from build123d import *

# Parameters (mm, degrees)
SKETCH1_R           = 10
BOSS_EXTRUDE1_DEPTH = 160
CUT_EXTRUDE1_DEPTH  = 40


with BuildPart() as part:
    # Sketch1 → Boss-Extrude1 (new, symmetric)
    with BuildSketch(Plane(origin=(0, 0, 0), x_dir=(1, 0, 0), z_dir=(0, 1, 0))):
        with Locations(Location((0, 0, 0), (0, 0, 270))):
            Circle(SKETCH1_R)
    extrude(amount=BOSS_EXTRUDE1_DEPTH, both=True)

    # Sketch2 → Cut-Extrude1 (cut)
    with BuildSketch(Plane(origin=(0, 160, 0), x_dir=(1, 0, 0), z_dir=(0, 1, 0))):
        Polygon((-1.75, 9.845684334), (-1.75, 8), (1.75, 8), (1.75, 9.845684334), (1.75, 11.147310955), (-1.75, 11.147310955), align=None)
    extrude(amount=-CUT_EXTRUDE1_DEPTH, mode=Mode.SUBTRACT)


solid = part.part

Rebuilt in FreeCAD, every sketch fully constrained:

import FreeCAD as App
import Part
import Sketcher


def add_polygon(sketch, points):
    """Adds a closed chain of lines whose ends are joined by coincident constraints."""
    first, n = sketch.GeometryCount, len(points)
    for a, b in zip(points, points[1:] + points[:1]):
        sketch.addGeometry(Part.LineSegment(App.Vector(*a, 0), App.Vector(*b, 0)), False)
    for i in range(n):
        sketch.addConstraint(Sketcher.Constraint("Coincident", first + i, 2, first + (i + 1) % n, 1))

doc = App.newDocument("Part")
params = doc.addObject("Spreadsheet::Sheet", "Params")
for row, (alias, value) in enumerate([
    ("sketch1_diameter", "20 mm"),
    ("pad1_length", "320 mm"),
    ("sketch2_width", "3.5 mm"),
    ("pocket1_length", "40 mm"),
], start=1):
    params.set(f"A{row}", alias)
    params.set(f"B{row}", "=" + value)
    params.setAlias(f"B{row}", alias)

body = doc.addObject("PartDesign::Body", "Body")

# Sketch on XZ plane
sketch1 = body.newObject("Sketcher::SketchObject", "Sketch")
sketch1.AttachmentSupport = (doc.getObject("XZ_Plane"), [""])
sketch1.MapMode = "FlatFace"
sketch1.addGeometry(Part.Circle(App.Vector(0, 0, 0), App.Vector(0, 0, 1), 10), False)
sketch1.addConstraint(Sketcher.Constraint("Coincident", 0, 3, -1, 1))
sketch1.addConstraint(Sketcher.Constraint("Diameter", 0, 20.0))
sketch1.setExpression("Constraints[1]", "Params.sketch1_diameter")
pad1 = body.newObject("PartDesign::Pad", "Pad")
pad1.Profile = sketch1
pad1.setExpression("Length", "Params.pad1_length")
pad1.Midplane = True

# Sketch on XZ plane
sketch2 = body.newObject("Sketcher::SketchObject", "Sketch001")
sketch2.AttachmentSupport = (doc.getObject("XZ_Plane"), [""])
sketch2.MapMode = "FlatFace"
sketch2.AttachmentOffset = App.Placement(App.Vector(0, 0, -160), App.Rotation())
add_polygon(sketch2, [(-1.8, -8), (1.8, -8), (1.8, -11.1), (-1.8, -11.1)])  # lines 0-3
sketch2.addConstraint(Sketcher.Constraint("Horizontal", 0))
sketch2.addConstraint(Sketcher.Constraint("Vertical", 1))
sketch2.addConstraint(Sketcher.Constraint("Horizontal", 2))
sketch2.addConstraint(Sketcher.Constraint("Vertical", 3))
sketch2.addConstraint(Sketcher.Constraint("DistanceX", 0, 1, 0, 2, 3.5))
sketch2.addConstraint(Sketcher.Constraint("DistanceY", 0, 2, -1, 1, 8.0))
sketch2.addConstraint(Sketcher.Constraint("DistanceX", -1, 1, 0, 2, 1.75))
sketch2.addConstraint(Sketcher.Constraint("DistanceY", 1, 2, 1, 1, 3.147311))
sketch2.setExpression("Constraints[8]", "Params.sketch2_width")
pocket1 = body.newObject("PartDesign::Pocket", "Pocket")
pocket1.Profile = sketch2
pocket1.setExpression("Length", "Params.pocket1_length")
pocket1.Reversed = True

doc.recompute()
